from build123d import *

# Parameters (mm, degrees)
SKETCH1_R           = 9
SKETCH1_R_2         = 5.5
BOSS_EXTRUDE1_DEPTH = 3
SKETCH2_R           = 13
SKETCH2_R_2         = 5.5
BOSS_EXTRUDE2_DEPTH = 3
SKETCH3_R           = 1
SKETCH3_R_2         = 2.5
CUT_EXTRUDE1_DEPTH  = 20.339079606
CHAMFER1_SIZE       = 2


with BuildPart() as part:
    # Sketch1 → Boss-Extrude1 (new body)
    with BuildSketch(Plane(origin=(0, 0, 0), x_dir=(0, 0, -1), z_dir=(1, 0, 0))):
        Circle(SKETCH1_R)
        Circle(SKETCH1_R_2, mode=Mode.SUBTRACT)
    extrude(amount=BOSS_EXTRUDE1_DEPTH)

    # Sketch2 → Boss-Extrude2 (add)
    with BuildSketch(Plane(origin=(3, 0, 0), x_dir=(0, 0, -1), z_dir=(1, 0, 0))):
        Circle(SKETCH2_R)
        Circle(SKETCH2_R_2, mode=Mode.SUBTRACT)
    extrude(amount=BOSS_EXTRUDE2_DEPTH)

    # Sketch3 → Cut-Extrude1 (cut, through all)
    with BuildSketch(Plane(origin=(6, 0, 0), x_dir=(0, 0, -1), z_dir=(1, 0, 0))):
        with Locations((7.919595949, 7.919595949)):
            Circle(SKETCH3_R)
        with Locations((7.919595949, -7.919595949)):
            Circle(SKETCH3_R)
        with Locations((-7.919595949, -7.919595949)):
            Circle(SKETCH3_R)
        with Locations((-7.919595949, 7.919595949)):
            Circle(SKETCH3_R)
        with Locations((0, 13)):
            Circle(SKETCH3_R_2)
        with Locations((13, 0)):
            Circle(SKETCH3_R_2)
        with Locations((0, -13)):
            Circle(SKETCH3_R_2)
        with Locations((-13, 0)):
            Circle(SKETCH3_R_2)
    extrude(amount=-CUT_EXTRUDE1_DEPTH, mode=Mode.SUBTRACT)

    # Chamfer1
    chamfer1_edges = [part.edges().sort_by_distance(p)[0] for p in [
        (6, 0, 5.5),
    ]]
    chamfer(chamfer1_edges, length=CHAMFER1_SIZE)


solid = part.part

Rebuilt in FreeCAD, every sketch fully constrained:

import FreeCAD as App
import Part
import Sketcher

V = App.Vector


def edges_at(feature, points):
    """Names of the edges that pass closest to the given points."""
    edges = feature.Shape.Edges
    near = lambda p: min(range(len(edges)), key=lambda i: edges[i].distToShape(Part.Vertex(*p))[0])
    return sorted({f"Edge{near(p) + 1}" for p in points})

doc = App.newDocument("Part")
params = doc.addObject("Spreadsheet::Sheet", "Params")
for row, (alias, value) in enumerate([
    ("sketch1_diameter", "18 mm"),
    ("sketch1_diameter2", "11 mm"),
    ("pad1_length", "3 mm"),
    ("sketch2_diameter", "26 mm"),
    ("sketch2_diameter2", "11 mm"),
    ("pad2_length", "3 mm"),
    ("sketch3_diameter", "2 mm"),
    ("sketch3_diameter2", "5 mm"),
    ("chamfer_size", "2 mm"),
], start=1):
    params.set(f"A{row}", alias)
    params.set(f"B{row}", "=" + value)
    params.setAlias(f"B{row}", alias)

body = doc.addObject("PartDesign::Body", "Body")

# Sketch on YZ plane
sketch1 = body.newObject("Sketcher::SketchObject", "Sketch")
sketch1.AttachmentSupport = (doc.getObject("YZ_Plane"), [""])
sketch1.MapMode = "FlatFace"
sketch1.addGeometry(Part.Circle(V(0, 0, 0), V(0, 0, 1), 9), False)
sketch1.addGeometry(Part.Circle(V(0, 0, 0), V(0, 0, 1), 6), False)
sketch1.addConstraint(Sketcher.Constraint("Coincident", 0, 3, -1, 1))
sketch1.addConstraint(Sketcher.Constraint("Coincident", 1, 3, -1, 1))
sketch1.addConstraint(Sketcher.Constraint("Diameter", 0, 18.0))
sketch1.addConstraint(Sketcher.Constraint("Diameter", 1, 11.0))
sketch1.setExpression("Constraints[2]", "Params.sketch1_diameter")
sketch1.setExpression("Constraints[3]", "Params.sketch1_diameter2")
pad1 = body.newObject("PartDesign::Pad", "Pad")
pad1.Profile = sketch1
pad1.setExpression("Length", "Params.pad1_length")

# Sketch on YZ plane
sketch2 = body.newObject("Sketcher::SketchObject", "Sketch001")
sketch2.AttachmentSupport = (doc.getObject("YZ_Plane"), [""])
sketch2.MapMode = "FlatFace"
sketch2.AttachmentOffset = App.Placement(V(0, 0, 3), App.Rotation())
sketch2.addGeometry(Part.Circle(V(0, 0, 0), V(0, 0, 1), 13), False)
sketch2.addGeometry(Part.Circle(V(0, 0, 0), V(0, 0, 1), 6), False)
sketch2.addConstraint(Sketcher.Constraint("Coincident", 0, 3, -1, 1))
sketch2.addConstraint(Sketcher.Constraint("Coincident", 1, 3, -1, 1))
sketch2.addConstraint(Sketcher.Constraint("Diameter", 0, 26.0))
sketch2.addConstraint(Sketcher.Constraint("Diameter", 1, 11.0))
sketch2.setExpression("Constraints[2]", "Params.sketch2_diameter")
sketch2.setExpression("Constraints[3]", "Params.sketch2_diameter2")
pad2 = body.newObject("PartDesign::Pad", "Pad001")
pad2.Profile = sketch2
pad2.setExpression("Length", "Params.pad2_length")

# Sketch on YZ plane
sketch3 = body.newObject("Sketcher::SketchObject", "Sketch002")
sketch3.AttachmentSupport = (doc.getObject("YZ_Plane"), [""])
sketch3.MapMode = "FlatFace"
sketch3.AttachmentOffset = App.Placement(V(0, 0, 6), App.Rotation())
sketch3.addGeometry(Part.Circle(V(7.9, -7.9, 0), V(0, 0, 1), 1), False)
sketch3.addGeometry(Part.Circle(V(-7.9, -7.9, 0), V(0, 0, 1), 1), False)
sketch3.addGeometry(Part.Circle(V(-7.9, 7.9, 0), V(0, 0, 1), 1), False)
sketch3.addGeometry(Part.Circle(V(7.9, 7.9, 0), V(0, 0, 1), 1), False)
sketch3.addGeometry(Part.Circle(V(13, 0, 0), V(0, 0, 1), 2.5), False)
sketch3.addGeometry(Part.Circle(V(0, -13, 0), V(0, 0, 1), 2.5), False)
sketch3.addGeometry(Part.Circle(V(-13, 0, 0), V(0, 0, 1), 2.5), False)
sketch3.addGeometry(Part.Circle(V(0, 13, 0), V(0, 0, 1), 2.5), False)
sketch3.addConstraint(Sketcher.Constraint("Equal", 0, 1))
sketch3.addConstraint(Sketcher.Constraint("Equal", 1, 2))
sketch3.addConstraint(Sketcher.Constraint("Equal", 2, 3))
sketch3.addConstraint(Sketcher.Constraint("Equal", 4, 5))
sketch3.addConstraint(Sketcher.Constraint("Equal", 5, 6))
sketch3.addConstraint(Sketcher.Constraint("Equal", 6, 7))
sketch3.addConstraint(Sketcher.Constraint("Symmetric", 0, 3, 2, 3, -1, 1))
sketch3.addConstraint(Sketcher.Constraint("Symmetric", 1, 3, 3, 3, -1, 1))
sketch3.addConstraint(Sketcher.Constraint("Symmetric", 4, 3, 6, 3, -1, 1))
sketch3.addConstraint(Sketcher.Constraint("Symmetric", 5, 3, 7, 3, -1, 1))
sketch3.addConstraint(Sketcher.Constraint("Symmetric", 0, 3, 1, 3, -2))
sketch3.addConstraint(Sketcher.Constraint("PointOnObject", 4, 3, -1))
sketch3.addConstraint(Sketcher.Constraint("PointOnObject", 5, 3, -2))
sketch3.addConstraint(Sketcher.Constraint("Diameter", 0, 2.0))
sketch3.addConstraint(Sketcher.Constraint("Diameter", 4, 5.0))
sketch3.addConstraint(Sketcher.Constraint("DistanceX", -1, 1, 4, 3, 13.0))
sketch3.addConstraint(Sketcher.Constraint("DistanceY", 5, 3, -1, 1, 13.0))
sketch3.addConstraint(Sketcher.Constraint("DistanceX", 1, 3, 0, 3, 15.839192))
sketch3.addConstraint(Sketcher.Constraint("DistanceY", 1, 3, 2, 3, 15.839192))
sketch3.setExpression("Constraints[13]", "Params.sketch3_diameter")
sketch3.setExpression("Constraints[14]", "Params.sketch3_diameter2")
pocket1 = body.newObject("PartDesign::Pocket", "Pocket")
pocket1.Profile = sketch3
pocket1.Type = "ThroughAll"
doc.recompute()

chamfer = body.newObject("PartDesign::Chamfer", "Chamfer")
chamfer.Base = (pocket1, edges_at(pocket1, [(6, 0, 5.5)]))
chamfer.setExpression("Size", "Params.chamfer_size")

doc.recompute()
